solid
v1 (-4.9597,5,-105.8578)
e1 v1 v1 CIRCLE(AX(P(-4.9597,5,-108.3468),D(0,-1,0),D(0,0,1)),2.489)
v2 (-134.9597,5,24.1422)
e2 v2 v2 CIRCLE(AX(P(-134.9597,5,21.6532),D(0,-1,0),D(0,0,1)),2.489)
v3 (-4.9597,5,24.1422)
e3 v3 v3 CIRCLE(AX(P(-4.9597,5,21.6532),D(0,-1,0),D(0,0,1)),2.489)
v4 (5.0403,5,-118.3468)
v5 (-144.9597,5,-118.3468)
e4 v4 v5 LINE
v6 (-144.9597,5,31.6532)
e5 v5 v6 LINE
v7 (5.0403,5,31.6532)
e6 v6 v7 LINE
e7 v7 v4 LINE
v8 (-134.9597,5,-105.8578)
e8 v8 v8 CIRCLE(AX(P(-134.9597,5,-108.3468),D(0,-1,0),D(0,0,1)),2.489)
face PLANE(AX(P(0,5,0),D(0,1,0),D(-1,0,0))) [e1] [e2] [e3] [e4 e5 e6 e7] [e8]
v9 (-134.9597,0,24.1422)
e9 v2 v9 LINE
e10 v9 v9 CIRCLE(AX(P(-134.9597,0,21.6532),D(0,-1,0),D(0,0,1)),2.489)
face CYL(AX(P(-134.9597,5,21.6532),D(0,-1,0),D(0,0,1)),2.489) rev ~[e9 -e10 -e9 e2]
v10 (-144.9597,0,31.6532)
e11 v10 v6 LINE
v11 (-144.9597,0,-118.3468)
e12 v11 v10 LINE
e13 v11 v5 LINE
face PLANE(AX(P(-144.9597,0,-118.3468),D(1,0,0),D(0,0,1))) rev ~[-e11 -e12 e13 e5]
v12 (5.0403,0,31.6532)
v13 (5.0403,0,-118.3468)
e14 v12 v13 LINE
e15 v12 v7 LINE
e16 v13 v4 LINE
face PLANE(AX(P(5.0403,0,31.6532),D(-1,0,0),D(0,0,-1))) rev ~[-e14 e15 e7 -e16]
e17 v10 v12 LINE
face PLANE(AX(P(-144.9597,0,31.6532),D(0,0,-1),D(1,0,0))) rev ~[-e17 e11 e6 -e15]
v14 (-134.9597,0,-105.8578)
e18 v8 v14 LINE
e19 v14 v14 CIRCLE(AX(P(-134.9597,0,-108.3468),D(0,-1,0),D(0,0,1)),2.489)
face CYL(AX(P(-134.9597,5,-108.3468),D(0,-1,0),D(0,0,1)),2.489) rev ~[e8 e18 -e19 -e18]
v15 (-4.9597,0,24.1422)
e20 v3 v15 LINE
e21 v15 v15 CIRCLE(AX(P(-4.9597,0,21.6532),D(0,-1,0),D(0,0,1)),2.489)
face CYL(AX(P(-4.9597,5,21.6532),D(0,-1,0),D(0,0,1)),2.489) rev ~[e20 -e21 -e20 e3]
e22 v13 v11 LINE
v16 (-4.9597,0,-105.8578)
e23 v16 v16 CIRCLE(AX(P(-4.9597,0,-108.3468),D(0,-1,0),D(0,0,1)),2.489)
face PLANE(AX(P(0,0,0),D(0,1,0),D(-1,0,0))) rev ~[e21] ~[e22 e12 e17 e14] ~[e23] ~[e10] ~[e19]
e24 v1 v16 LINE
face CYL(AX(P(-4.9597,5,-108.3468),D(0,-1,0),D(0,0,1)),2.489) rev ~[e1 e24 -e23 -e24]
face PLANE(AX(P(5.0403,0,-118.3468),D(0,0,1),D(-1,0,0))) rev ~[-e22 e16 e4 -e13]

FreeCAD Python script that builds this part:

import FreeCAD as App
import Part
import Sketcher
from FreeCAD import Vector
Q = App.Units.Quantity


def add_polygon(sketch, points):
    """Adds a closed chain of lines whose ends are joined by coincident constraints."""
    first, n = sketch.GeometryCount, len(points)
    for a, b in zip(points, points[1:] + points[:1]):
        sketch.addGeometry(Part.LineSegment(App.Vector(*a, 0), App.Vector(*b, 0)), False)
    for i in range(n):
        sketch.addConstraint(Sketcher.Constraint("Coincident", first + i, 2, first + (i + 1) % n, 1))

doc = App.newDocument("Part")
body = doc.addObject("PartDesign::Body", "Body")

# Sketch on XZ plane
sketch1 = body.newObject("Sketcher::SketchObject", "Sketch")
sketch1.AttachmentSupport = (doc.getObject("XZ_Plane"), [""])
sketch1.MapMode = "FlatFace"
add_polygon(sketch1, [(-145, -118), (-145, 32), (5, 32), (5, -118)])  # lines 0-3
sketch1.addConstraint(Sketcher.Constraint("Vertical", 0))
sketch1.addConstraint(Sketcher.Constraint("Horizontal", 1))
sketch1.addConstraint(Sketcher.Constraint("Vertical", 2))
sketch1.addConstraint(Sketcher.Constraint("Horizontal", 3))
sketch1.addConstraint(Sketcher.Constraint("Equal", 3, 0))
sketch1.addConstraint(Sketcher.Constraint("DistanceX", 1, 1, 1, 2, Q("150 mm")))
sketch1.addConstraint(Sketcher.Constraint("DistanceX", 0, 2, -1, 1, Q("144.9597 mm")))
sketch1.addConstraint(Sketcher.Constraint("DistanceY", -1, 1, 0, 2, Q("31.6532 mm")))
pad1 = body.newObject("PartDesign::Pad", "Pad")
pad1.Profile = sketch1
pad1.Length = 5
pad1.Reversed = True

# Sketch on XZ plane
sketch2 = body.newObject("Sketcher::SketchObject", "Sketch001")
sketch2.AttachmentSupport = (doc.getObject("XZ_Plane"), [""])
sketch2.MapMode = "FlatFace"
sketch2.AttachmentOffset = App.Placement(Vector(0, 0, -5), App.Rotation())
sketch2.addGeometry(Part.Circle(Vector(-135, 21.7, 0), Vector(0, 0, 1), 2.5), False)
sketch2.addGeometry(Part.Circle(Vector(-135, -108.3, 0), Vector(0, 0, 1), 2.5), False)
sketch2.addGeometry(Part.Circle(Vector(-5, -108.3, 0), Vector(0, 0, 1), 2.5), False)
sketch2.addGeometry(Part.Circle(Vector(-5, 21.7, 0), Vector(0, 0, 1), 2.5), False)
sketch2.addConstraint(Sketcher.Constraint("Equal", 0, 1))
sketch2.addConstraint(Sketcher.Constraint("Equal", 1, 2))
sketch2.addConstraint(Sketcher.Constraint("Equal", 2, 3))
sketch2.addConstraint(Sketcher.Constraint("Horizontal", 1, 3, 2, 3))
sketch2.addConstraint(Sketcher.Constraint("Horizontal", 0, 3, 3, 3))
sketch2.addConstraint(Sketcher.Constraint("Vertical", 0, 3, 1, 3))
sketch2.addConstraint(Sketcher.Constraint("Vertical", 2, 3, 3, 3))
sketch2.addConstraint(Sketcher.Constraint("Diameter", 0, Q("4.978 mm")))
sketch2.addConstraint(Sketcher.Constraint("DistanceY", 1, 3, 0, 3, Q("130 mm")))
sketch2.addConstraint(Sketcher.Constraint("DistanceX", 1, 3, 2, 3, Q("130 mm")))
sketch2.addConstraint(Sketcher.Constraint("DistanceX", 0, 3, -1, 1, Q("134.9597 mm")))
sketch2.addConstraint(Sketcher.Constraint("DistanceY", -1, 1, 0, 3, Q("21.6532 mm")))
doc.recompute()
hole = body.newObject("PartDesign::Hole", "Hole")
hole.Profile = sketch2
hole.ThreadType = "None"
hole.Diameter = 4.978
hole.DepthType = "Dimension"
hole.Depth = 19.05
hole.DrillPoint = "Angled"
hole.DrillPointAngle = 118
hole.Reversed = True

doc.recompute()
